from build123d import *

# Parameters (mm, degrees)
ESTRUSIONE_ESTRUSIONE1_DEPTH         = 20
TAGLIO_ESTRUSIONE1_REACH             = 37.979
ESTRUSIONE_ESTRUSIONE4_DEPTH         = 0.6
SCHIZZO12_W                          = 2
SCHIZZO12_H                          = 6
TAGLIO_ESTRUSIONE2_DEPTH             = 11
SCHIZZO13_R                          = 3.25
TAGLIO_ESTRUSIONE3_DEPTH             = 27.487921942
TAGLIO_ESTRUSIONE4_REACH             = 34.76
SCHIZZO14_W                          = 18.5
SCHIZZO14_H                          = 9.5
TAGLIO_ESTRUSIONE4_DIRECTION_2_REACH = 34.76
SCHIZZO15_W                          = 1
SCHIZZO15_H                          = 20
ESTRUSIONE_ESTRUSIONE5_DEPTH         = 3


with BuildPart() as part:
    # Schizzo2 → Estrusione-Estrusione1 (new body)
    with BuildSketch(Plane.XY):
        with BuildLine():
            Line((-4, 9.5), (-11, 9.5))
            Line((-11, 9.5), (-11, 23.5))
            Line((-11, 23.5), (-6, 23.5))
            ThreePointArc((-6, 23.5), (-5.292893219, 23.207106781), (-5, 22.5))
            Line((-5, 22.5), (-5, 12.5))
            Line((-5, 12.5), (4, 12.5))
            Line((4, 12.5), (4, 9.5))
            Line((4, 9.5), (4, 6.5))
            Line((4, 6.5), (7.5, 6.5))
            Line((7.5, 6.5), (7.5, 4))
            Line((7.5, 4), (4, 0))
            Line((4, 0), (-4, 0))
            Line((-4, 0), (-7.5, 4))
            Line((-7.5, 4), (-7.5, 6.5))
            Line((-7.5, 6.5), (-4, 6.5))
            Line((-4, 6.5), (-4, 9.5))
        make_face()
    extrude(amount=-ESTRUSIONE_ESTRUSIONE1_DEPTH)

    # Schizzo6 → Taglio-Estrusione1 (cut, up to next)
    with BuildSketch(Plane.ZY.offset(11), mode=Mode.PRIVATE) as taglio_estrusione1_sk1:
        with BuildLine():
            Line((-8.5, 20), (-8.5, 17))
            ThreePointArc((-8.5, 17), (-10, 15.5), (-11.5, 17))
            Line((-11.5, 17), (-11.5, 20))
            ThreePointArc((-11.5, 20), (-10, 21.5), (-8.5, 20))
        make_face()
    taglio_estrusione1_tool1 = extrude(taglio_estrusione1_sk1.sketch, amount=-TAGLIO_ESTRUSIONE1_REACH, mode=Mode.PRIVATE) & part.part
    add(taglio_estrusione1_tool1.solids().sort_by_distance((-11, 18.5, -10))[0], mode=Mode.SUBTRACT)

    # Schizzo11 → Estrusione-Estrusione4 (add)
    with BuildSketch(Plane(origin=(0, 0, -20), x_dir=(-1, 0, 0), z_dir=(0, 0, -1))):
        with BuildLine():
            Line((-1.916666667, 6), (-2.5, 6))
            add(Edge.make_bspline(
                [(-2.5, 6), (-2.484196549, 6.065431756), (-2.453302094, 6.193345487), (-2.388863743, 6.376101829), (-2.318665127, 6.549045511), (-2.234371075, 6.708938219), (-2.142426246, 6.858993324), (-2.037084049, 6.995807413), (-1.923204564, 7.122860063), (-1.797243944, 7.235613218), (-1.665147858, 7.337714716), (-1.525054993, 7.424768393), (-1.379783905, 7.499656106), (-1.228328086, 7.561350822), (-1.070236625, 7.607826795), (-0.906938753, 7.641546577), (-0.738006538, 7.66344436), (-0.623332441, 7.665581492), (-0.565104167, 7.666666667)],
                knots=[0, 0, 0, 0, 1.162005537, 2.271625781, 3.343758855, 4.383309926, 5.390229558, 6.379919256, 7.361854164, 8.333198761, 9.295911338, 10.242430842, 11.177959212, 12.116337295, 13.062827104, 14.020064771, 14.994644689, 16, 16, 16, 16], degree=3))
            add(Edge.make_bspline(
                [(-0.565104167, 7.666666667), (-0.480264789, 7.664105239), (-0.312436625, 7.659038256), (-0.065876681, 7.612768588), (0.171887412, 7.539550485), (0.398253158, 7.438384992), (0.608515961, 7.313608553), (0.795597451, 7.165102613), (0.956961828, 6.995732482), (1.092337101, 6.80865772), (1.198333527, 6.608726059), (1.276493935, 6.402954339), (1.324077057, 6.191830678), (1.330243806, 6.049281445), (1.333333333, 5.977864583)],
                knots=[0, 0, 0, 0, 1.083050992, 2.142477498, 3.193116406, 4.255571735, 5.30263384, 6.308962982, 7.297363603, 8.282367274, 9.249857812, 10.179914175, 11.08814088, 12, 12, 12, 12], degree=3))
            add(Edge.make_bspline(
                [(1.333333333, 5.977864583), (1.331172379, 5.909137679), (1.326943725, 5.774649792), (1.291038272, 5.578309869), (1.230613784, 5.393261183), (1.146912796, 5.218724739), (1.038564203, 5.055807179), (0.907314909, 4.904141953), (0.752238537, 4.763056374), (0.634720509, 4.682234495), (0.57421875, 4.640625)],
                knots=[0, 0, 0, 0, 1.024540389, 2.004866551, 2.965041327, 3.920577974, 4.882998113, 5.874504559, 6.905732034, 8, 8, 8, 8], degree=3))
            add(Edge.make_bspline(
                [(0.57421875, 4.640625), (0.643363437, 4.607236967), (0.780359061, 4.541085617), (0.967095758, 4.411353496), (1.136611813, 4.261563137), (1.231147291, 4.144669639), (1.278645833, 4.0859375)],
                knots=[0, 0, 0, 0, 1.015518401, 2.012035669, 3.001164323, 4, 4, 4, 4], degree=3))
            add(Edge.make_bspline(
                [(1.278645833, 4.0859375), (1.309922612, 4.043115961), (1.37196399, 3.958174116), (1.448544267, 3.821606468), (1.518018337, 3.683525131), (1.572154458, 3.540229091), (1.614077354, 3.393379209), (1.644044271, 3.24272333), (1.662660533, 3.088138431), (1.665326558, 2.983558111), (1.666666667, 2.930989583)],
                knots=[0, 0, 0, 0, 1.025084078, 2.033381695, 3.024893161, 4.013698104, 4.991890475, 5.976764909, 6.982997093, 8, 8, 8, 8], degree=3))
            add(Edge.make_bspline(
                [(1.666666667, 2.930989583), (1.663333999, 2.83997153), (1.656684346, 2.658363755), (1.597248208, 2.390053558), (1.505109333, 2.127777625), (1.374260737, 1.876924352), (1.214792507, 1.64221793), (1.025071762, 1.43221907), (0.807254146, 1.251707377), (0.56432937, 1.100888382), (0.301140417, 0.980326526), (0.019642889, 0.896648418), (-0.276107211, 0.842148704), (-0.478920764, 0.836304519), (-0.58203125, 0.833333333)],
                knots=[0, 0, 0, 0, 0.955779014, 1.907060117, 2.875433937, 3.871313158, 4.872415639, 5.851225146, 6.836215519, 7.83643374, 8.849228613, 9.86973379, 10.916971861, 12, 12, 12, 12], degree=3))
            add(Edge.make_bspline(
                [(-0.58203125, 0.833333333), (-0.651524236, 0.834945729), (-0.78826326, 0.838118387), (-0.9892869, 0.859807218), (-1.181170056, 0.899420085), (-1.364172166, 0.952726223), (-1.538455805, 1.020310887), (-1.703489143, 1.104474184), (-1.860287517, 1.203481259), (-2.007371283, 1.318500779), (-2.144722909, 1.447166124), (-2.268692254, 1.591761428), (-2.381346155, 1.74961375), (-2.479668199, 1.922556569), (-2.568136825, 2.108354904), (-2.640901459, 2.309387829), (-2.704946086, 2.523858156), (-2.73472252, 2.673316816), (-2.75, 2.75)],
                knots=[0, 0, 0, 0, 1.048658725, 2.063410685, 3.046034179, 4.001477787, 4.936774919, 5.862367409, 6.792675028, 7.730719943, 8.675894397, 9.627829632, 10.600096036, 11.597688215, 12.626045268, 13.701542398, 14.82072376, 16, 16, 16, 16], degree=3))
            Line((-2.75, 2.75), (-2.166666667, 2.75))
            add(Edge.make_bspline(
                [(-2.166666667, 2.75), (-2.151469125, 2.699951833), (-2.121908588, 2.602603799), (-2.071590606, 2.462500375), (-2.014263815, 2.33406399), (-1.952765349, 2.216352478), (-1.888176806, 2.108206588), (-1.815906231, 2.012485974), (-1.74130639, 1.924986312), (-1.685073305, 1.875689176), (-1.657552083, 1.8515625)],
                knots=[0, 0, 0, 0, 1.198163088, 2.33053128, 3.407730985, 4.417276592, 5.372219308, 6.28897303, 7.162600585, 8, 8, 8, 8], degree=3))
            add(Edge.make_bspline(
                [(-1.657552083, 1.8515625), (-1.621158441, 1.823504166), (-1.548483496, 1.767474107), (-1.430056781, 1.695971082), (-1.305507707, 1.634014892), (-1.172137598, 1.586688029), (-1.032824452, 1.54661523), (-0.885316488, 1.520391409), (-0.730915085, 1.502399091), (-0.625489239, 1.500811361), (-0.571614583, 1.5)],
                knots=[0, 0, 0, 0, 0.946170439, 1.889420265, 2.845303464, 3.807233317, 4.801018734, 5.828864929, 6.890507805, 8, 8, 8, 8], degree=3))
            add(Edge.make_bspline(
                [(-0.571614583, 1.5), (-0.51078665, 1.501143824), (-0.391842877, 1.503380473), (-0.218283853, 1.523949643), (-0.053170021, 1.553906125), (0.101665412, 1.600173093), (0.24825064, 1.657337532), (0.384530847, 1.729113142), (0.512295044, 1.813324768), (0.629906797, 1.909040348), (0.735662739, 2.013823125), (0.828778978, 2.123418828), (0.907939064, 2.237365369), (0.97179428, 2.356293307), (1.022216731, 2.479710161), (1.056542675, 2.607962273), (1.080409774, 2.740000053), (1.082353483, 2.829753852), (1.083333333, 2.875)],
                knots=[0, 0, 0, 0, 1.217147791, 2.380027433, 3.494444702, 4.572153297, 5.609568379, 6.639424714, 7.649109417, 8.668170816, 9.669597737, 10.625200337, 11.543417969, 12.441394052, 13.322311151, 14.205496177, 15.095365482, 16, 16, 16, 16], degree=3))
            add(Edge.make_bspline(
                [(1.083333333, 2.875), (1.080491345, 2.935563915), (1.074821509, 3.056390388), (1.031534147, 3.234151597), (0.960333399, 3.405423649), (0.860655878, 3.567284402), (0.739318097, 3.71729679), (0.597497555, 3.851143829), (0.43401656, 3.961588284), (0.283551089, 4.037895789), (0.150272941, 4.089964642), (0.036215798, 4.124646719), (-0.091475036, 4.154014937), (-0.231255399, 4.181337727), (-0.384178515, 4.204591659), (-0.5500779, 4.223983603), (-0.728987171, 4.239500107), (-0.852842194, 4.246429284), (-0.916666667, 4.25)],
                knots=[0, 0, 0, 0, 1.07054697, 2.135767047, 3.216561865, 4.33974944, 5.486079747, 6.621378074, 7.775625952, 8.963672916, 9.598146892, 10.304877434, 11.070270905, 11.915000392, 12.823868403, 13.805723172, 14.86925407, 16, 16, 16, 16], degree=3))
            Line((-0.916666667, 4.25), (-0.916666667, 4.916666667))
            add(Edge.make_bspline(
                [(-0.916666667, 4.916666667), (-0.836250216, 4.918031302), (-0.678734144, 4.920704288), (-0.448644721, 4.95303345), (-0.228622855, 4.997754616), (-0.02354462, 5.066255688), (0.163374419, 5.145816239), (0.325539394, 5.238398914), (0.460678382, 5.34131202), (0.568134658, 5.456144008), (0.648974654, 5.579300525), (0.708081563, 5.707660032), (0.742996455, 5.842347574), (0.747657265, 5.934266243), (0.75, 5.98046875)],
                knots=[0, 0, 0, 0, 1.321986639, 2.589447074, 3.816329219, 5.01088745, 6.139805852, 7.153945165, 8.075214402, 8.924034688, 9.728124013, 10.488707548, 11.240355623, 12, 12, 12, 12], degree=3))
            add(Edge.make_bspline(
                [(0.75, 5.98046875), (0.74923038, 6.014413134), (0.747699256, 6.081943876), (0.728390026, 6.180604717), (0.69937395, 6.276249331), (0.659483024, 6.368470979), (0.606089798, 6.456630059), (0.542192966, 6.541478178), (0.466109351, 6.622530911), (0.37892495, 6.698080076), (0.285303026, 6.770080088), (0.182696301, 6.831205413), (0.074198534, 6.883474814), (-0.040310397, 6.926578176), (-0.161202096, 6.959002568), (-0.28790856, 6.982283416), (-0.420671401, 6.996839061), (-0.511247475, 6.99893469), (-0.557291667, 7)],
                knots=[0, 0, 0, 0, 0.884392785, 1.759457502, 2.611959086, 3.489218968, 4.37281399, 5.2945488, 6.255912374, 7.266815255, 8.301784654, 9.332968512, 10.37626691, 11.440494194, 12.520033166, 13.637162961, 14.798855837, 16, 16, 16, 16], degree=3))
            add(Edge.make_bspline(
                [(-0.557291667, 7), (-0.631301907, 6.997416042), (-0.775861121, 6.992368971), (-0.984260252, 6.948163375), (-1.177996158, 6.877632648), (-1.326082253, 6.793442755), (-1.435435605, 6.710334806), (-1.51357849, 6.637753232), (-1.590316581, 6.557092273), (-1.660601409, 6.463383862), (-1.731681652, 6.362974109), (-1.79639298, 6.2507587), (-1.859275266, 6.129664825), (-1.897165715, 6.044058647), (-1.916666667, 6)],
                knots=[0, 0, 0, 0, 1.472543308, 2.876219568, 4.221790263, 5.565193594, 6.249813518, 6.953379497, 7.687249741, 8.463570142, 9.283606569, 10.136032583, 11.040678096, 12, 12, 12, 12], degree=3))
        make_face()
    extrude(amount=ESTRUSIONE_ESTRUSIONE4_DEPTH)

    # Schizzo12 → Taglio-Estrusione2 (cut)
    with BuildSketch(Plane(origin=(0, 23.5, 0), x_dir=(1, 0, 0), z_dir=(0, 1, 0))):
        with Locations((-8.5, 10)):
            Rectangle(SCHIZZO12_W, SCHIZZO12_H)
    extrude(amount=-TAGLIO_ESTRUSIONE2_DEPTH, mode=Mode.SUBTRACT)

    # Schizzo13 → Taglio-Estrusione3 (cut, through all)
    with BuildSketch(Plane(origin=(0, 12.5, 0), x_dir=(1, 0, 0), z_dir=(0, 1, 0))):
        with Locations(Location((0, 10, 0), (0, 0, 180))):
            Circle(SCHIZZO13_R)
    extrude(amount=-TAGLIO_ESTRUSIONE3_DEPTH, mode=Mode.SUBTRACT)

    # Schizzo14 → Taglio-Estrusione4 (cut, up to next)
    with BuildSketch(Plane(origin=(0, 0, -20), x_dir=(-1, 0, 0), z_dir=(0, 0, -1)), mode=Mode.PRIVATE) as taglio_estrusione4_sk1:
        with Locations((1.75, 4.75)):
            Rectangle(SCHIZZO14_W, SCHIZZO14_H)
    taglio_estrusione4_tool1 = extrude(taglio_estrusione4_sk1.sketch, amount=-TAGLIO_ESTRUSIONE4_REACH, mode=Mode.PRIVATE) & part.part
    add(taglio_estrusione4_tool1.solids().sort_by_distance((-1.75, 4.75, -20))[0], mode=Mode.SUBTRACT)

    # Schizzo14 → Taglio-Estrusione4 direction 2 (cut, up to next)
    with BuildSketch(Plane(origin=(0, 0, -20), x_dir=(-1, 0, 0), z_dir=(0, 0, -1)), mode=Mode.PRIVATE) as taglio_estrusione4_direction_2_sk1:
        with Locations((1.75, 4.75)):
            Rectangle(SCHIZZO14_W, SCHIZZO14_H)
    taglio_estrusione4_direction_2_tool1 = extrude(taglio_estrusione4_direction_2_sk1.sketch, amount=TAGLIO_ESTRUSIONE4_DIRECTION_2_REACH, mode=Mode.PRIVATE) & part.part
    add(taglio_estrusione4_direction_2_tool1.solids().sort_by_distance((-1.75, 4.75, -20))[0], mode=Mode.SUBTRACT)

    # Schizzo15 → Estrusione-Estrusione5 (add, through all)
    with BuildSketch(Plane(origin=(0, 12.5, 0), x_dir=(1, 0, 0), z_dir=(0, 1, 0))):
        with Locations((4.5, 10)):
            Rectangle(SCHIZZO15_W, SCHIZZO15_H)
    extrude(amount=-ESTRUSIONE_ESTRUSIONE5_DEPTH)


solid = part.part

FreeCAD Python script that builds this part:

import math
import FreeCAD as App
import Part
import Sketcher

V = App.Vector
Q = App.Units.Quantity


def add_polygon(sketch, points):
    """Adds a closed chain of lines whose ends are joined by coincident constraints."""
    first, n = sketch.GeometryCount, len(points)
    for a, b in zip(points, points[1:] + points[:1]):
        sketch.addGeometry(Part.LineSegment(App.Vector(*a, 0), App.Vector(*b, 0)), False)
    for i in range(n):
        sketch.addConstraint(Sketcher.Constraint("Coincident", first + i, 2, first + (i + 1) % n, 1))

doc = App.newDocument("Part")
body = doc.addObject("PartDesign::Body", "Body")
body.AllowCompound = True

# Sketch on XY plane
sketch1 = body.newObject("Sketcher::SketchObject", "Sketch")
sketch1.AttachmentSupport = (doc.getObject("XY_Plane"), [""])
sketch1.MapMode = "FlatFace"
sketch1.addGeometry([
    Part.LineSegment(V(-11, 9.5, 0), V(-4, 9.5, 0)),  # 0
    Part.LineSegment(V(-4, 9.5, 0), V(-4, 6.5, 0)),  # 1
    Part.LineSegment(V(-4, 6.5, 0), V(-7.5, 6.5, 0)),  # 2
    Part.LineSegment(V(-7.5, 6.5, 0), V(-7.5, 4, 0)),  # 3
    Part.LineSegment(V(-7.5, 4, 0), V(-4, 0, 0)),  # 4
    Part.LineSegment(V(-4, 0, 0), V(4, 0, 0)),  # 5
    Part.LineSegment(V(4, 0, 0), V(7.5, 4, 0)),  # 6
    Part.LineSegment(V(7.5, 4, 0), V(7.5, 6.5, 0)),  # 7
    Part.LineSegment(V(7.5, 6.5, 0), V(4, 6.5, 0)),  # 8
    Part.LineSegment(V(4, 6.5, 0), V(4, 12.5, 0)),  # 9
    Part.LineSegment(V(4, 12.5, 0), V(-5, 12.5, 0)),  # 10
    Part.LineSegment(V(-5, 12.5, 0), V(-5, 22.5, 0)),  # 11
    Part.ArcOfCircle(Part.Circle(V(-6, 22.5, 0), V(0, 0, 1), 1), math.radians(0), math.radians(90)),  # 12
    Part.LineSegment(V(-6, 23.5, 0), V(-11, 23.5, 0)),  # 13
    Part.LineSegment(V(-11, 23.5, 0), V(-11, 9.5, 0)),  # 14
], False)
sketch1.addConstraint([
    Sketcher.Constraint("Coincident", 0, 2, 1, 1),
    Sketcher.Constraint("Coincident", 1, 2, 2, 1),
    Sketcher.Constraint("Coincident", 2, 2, 3, 1),
    Sketcher.Constraint("Coincident", 3, 2, 4, 1),
    Sketcher.Constraint("Coincident", 4, 2, 5, 1),
    Sketcher.Constraint("Coincident", 5, 2, 6, 1),
    Sketcher.Constraint("Coincident", 6, 2, 7, 1),
    Sketcher.Constraint("Coincident", 7, 2, 8, 1),
    Sketcher.Constraint("Coincident", 8, 2, 9, 1),
    Sketcher.Constraint("Coincident", 9, 2, 10, 1),
    Sketcher.Constraint("Coincident", 10, 2, 11, 1),
    Sketcher.Constraint("Tangent", 11, 2, 12, 1),
    Sketcher.Constraint("Tangent", 12, 2, 13, 1),
    Sketcher.Constraint("Coincident", 13, 2, 14, 1),
    Sketcher.Constraint("Coincident", 14, 2, 0, 1),
    Sketcher.Constraint("Horizontal", 0),
    Sketcher.Constraint("Vertical", 1),
    Sketcher.Constraint("Horizontal", 2),
    Sketcher.Constraint("Vertical", 3),
    Sketcher.Constraint("Horizontal", 5),
    Sketcher.Constraint("Vertical", 7),
    Sketcher.Constraint("Horizontal", 8),
    Sketcher.Constraint("Vertical", 9),
    Sketcher.Constraint("Horizontal", 10),
    Sketcher.Constraint("Vertical", 11),
    Sketcher.Constraint("Horizontal", 13),
    Sketcher.Constraint("Vertical", 14),
    Sketcher.Constraint("Symmetric", 4, 2, 5, 2, -1, 1),
    Sketcher.Constraint("Symmetric", 3, 2, 6, 2, -2),
    Sketcher.Constraint("Symmetric", 1, 2, 8, 2, -2),
    Sketcher.Constraint("Vertical", 1, 2, 4, 2),
    Sketcher.Constraint("Radius", 12, Q("1 mm")),
    Sketcher.Constraint("DistanceX", 0, 1, 0, 2, Q("7 mm")),
    Sketcher.Constraint("DistanceX", 5, 1, 5, 2, Q("8 mm")),
    Sketcher.Constraint("DistanceX", 10, 2, 10, 1, Q("9 mm")),
    Sketcher.Constraint("DistanceY", 1, 2, 1, 1, Q("3 mm")),
    Sketcher.Constraint("DistanceY", 9, 1, 9, 2, Q("6 mm")),
    Sketcher.Constraint("DistanceY", 11, 1, 11, 2, Q("10 mm")),
    Sketcher.Constraint("DistanceX", 2, 2, 2, 1, Q("3.5 mm")),
    Sketcher.Constraint("DistanceY", 3, 2, 3, 1, Q("2.5 mm")),
    Sketcher.Constraint("DistanceY", -1, 1, 3, 2, Q("4 mm")),
])
pad1 = body.newObject("PartDesign::Pad", "Pad")
pad1.Profile = sketch1
pad1.Length = 20
pad1.Reversed = True

# Sketch on YZ plane
sketch2 = body.newObject("Sketcher::SketchObject", "Sketch001")
sketch2.AttachmentSupport = (doc.getObject("YZ_Plane"), [""])
sketch2.MapMode = "FlatFace"
sketch2.AttachmentOffset = App.Placement(V(0, 0, -11), App.Rotation())
sketch2.addGeometry([
    Part.LineSegment(V(17, -8.5, 0), V(20, -8.5, 0)),
    Part.ArcOfCircle(Part.Circle(V(20, -10, 0), V(0, 0, 1), 1.5), math.radians(-90), math.radians(90)),
    Part.LineSegment(V(20, -11.5, 0), V(17, -11.5, 0)),
    Part.ArcOfCircle(Part.Circle(V(17, -10, 0), V(0, 0, 1), 1.5), math.radians(90), math.radians(270)),
], False)
sketch2.addConstraint([
    Sketcher.Constraint("Tangent", 0, 2, 1, 2),
    Sketcher.Constraint("Tangent", 1, 1, 2, 1),
    Sketcher.Constraint("Tangent", 2, 2, 3, 2),
    Sketcher.Constraint("Tangent", 3, 1, 0, 1),
    Sketcher.Constraint("Horizontal", 0),
    Sketcher.Constraint("Horizontal", 2),
    Sketcher.Constraint("Radius", 1, Q("1.5 mm")),
    Sketcher.Constraint("DistanceX", 0, 1, 0, 2, Q("3 mm")),
    Sketcher.Constraint("DistanceX", -1, 1, 1, 3, Q("20 mm")),
    Sketcher.Constraint("DistanceY", 1, 3, -1, 1, Q("10 mm")),
])
pocket1 = body.newObject("PartDesign::Pocket", "Pocket")
pocket1.Profile = sketch2
pocket1.Type = "UpToFirst"
pocket1.Reversed = True

# Sketch on XY plane
sketch3 = body.newObject("Sketcher::SketchObject", "Sketch002")
sketch3.AttachmentSupport = (doc.getObject("XY_Plane"), [""])
sketch3.MapMode = "FlatFace"
sketch3.AttachmentOffset = App.Placement(V(0, 0, -20), App.Rotation())
sketch3.addGeometry([
    Part.LineSegment(V(2.5, 6, 0), V(1.916667, 6, 0)),  # 0
    Part.BSplineCurve([V(0.557292, 7, 0), V(0.631302, 6.997416, 0), V(0.775861, 6.992369, 0), V(0.98426, 6.948163, 0), V(1.177996, 6.877633, 0), V(1.326082, 6.793443, 0), V(1.435436, 6.710335, 0), V(1.513578, 6.637753, 0), V(1.590317, 6.557092, 0), V(1.660601, 6.463384, 0), V(1.731682, 6.362974, 0), V(1.796393, 6.250759, 0), V(1.859275, 6.129665, 0), V(1.897166, 6.044059, 0), V(1.916667, 6, 0)], [4, 1, 1, 1, 1, 1, 1, 1, 1, 1, 1, 1, 4], [0, 1.472543308, 2.876219568, 4.221790263, 5.565193594, 6.249813518, 6.953379497, 7.687249741, 8.463570142, 9.283606569, 10.136032583, 11.040678096, 12], False, 3, [1, 1, 1, 1, 1, 1, 1, 1, 1, 1, 1, 1, 1, 1, 1], False),  # 1
    Part.BSplineCurve([V(-0.75, 5.980469, 0), V(-0.74923, 6.014413, 0), V(-0.747699, 6.081944, 0), V(-0.72839, 6.180605, 0), V(-0.699374, 6.276249, 0), V(-0.659483, 6.368471, 0), V(-0.60609, 6.45663, 0), V(-0.542193, 6.541478, 0), V(-0.466109, 6.622531, 0), V(-0.378925, 6.69808, 0), V(-0.285303, 6.77008, 0), V(-0.182696, 6.831205, 0), V(-0.074199, 6.883475, 0), V(0.04031, 6.926578, 0), V(0.161202, 6.959003, 0), V(0.287909, 6.982283, 0), V(0.420671, 6.996839, 0), V(0.511247, 6.998935, 0), V(0.557292, 7, 0)], [4, 1, 1, 1, 1, 1, 1, 1, 1, 1, 1, 1, 1, 1, 1, 1, 4], [0, 0.884392785, 1.759457502, 2.611959086, 3.489218968, 4.37281399, 5.2945488, 6.255912374, 7.266815255, 8.301784654, 9.332968512, 10.37626691, 11.440494194, 12.520033166, 13.637162961, 14.798855837, 16], False, 3, [1, 1, 1, 1, 1, 1, 1, 1, 1, 1, 1, 1, 1, 1, 1, 1, 1, 1, 1], False),  # 2
    Part.BSplineCurve([V(0.916667, 4.916667, 0), V(0.83625, 4.918031, 0), V(0.678734, 4.920704, 0), V(0.448645, 4.953033, 0), V(0.228623, 4.997755, 0), V(0.023545, 5.066256, 0), V(-0.163374, 5.145816, 0), V(-0.325539, 5.238399, 0), V(-0.460678, 5.341312, 0), V(-0.568135, 5.456144, 0), V(-0.648975, 5.579301, 0), V(-0.708082, 5.70766, 0), V(-0.742996, 5.842348, 0), V(-0.747657, 5.934266, 0), V(-0.75, 5.980469, 0)], [4, 1, 1, 1, 1, 1, 1, 1, 1, 1, 1, 1, 4], [0, 1.321986639, 2.589447074, 3.816329219, 5.01088745, 6.139805852, 7.153945165, 8.075214402, 8.924034688, 9.728124013, 10.488707548, 11.240355623, 12], False, 3, [1, 1, 1, 1, 1, 1, 1, 1, 1, 1, 1, 1, 1, 1, 1], False),  # 3
    Part.LineSegment(V(0.916667, 4.916667, 0), V(0.916667, 4.25, 0)),  # 4
    Part.BSplineCurve([V(-1.083333, 2.875, 0), V(-1.080491, 2.935564, 0), V(-1.074822, 3.05639, 0), V(-1.031534, 3.234152, 0), V(-0.960333, 3.405424, 0), V(-0.860656, 3.567284, 0), V(-0.739318, 3.717297, 0), V(-0.597498, 3.851144, 0), V(-0.434017, 3.961588, 0), V(-0.283551, 4.037896, 0), V(-0.150273, 4.089965, 0), V(-0.036216, 4.124647, 0), V(0.091475, 4.154015, 0), V(0.231255, 4.181338, 0), V(0.384179, 4.204592, 0), V(0.550078, 4.223984, 0), V(0.728987, 4.2395, 0), V(0.852842, 4.246429, 0), V(0.916667, 4.25, 0)], [4, 1, 1, 1, 1, 1, 1, 1, 1, 1, 1, 1, 1, 1, 1, 1, 4], [0, 1.07054697, 2.135767047, 3.216561865, 4.33974944, 5.486079747, 6.621378074, 7.775625952, 8.963672916, 9.598146892, 10.304877434, 11.070270905, 11.915000392, 12.823868403, 13.805723172, 14.86925407, 16], False, 3, [1, 1, 1, 1, 1, 1, 1, 1, 1, 1, 1, 1, 1, 1, 1, 1, 1, 1, 1], False),  # 5
    Part.BSplineCurve([V(0.571615, 1.5, 0), V(0.510787, 1.501144, 0), V(0.391843, 1.50338, 0), V(0.218284, 1.52395, 0), V(0.05317, 1.553906, 0), V(-0.101665, 1.600173, 0), V(-0.248251, 1.657338, 0), V(-0.384531, 1.729113, 0), V(-0.512295, 1.813325, 0), V(-0.629907, 1.90904, 0), V(-0.735663, 2.013823, 0), V(-0.828779, 2.123419, 0), V(-0.907939, 2.237365, 0), V(-0.971794, 2.356293, 0), V(-1.022217, 2.47971, 0), V(-1.056543, 2.607962, 0), V(-1.08041, 2.74, 0), V(-1.082353, 2.829754, 0), V(-1.083333, 2.875, 0)], [4, 1, 1, 1, 1, 1, 1, 1, 1, 1, 1, 1, 1, 1, 1, 1, 4], [0, 1.217147791, 2.380027433, 3.494444702, 4.572153297, 5.609568379, 6.639424714, 7.649109417, 8.668170816, 9.669597737, 10.625200337, 11.543417969, 12.441394052, 13.322311151, 14.205496177, 15.095365482, 16], False, 3, [1, 1, 1, 1, 1, 1, 1, 1, 1, 1, 1, 1, 1, 1, 1, 1, 1, 1, 1], False),  # 6
    Part.BSplineCurve([V(1.657552, 1.851562, 0), V(1.621158, 1.823504, 0), V(1.548483, 1.767474, 0), V(1.430057, 1.695971, 0), V(1.305508, 1.634015, 0), V(1.172138, 1.586688, 0), V(1.032824, 1.546615, 0), V(0.885316, 1.520391, 0), V(0.730915, 1.502399, 0), V(0.625489, 1.500811, 0), V(0.571615, 1.5, 0)], [4, 1, 1, 1, 1, 1, 1, 1, 4], [0, 0.946170439, 1.889420265, 2.845303464, 3.807233317, 4.801018734, 5.828864929, 6.890507805, 8], False, 3, [1, 1, 1, 1, 1, 1, 1, 1, 1, 1, 1], False),  # 7
    Part.BSplineCurve([V(2.166667, 2.75, 0), V(2.151469, 2.699952, 0), V(2.121909, 2.602604, 0), V(2.071591, 2.4625, 0), V(2.014264, 2.334064, 0), V(1.952765, 2.216352, 0), V(1.888177, 2.108207, 0), V(1.815906, 2.012486, 0), V(1.741306, 1.924986, 0), V(1.685073, 1.875689, 0), V(1.657552, 1.851562, 0)], [4, 1, 1, 1, 1, 1, 1, 1, 4], [0, 1.198163088, 2.33053128, 3.407730985, 4.417276592, 5.372219308, 6.28897303, 7.162600585, 8], False, 3, [1, 1, 1, 1, 1, 1, 1, 1, 1, 1, 1], False),  # 8
    Part.LineSegment(V(2.166667, 2.75, 0), V(2.75, 2.75, 0)),  # 9
    Part.BSplineCurve([V(0.582031, 0.833333, 0), V(0.651524, 0.834946, 0), V(0.788263, 0.838118, 0), V(0.989287, 0.859807, 0), V(1.18117, 0.89942, 0), V(1.364172, 0.952726, 0), V(1.538456, 1.020311, 0), V(1.703489, 1.104474, 0), V(1.860288, 1.203481, 0), V(2.007371, 1.318501, 0), V(2.144723, 1.447166, 0), V(2.268692, 1.591761, 0), V(2.381346, 1.749614, 0), V(2.479668, 1.922557, 0), V(2.568137, 2.108355, 0), V(2.640901, 2.309388, 0), V(2.704946, 2.523858, 0), V(2.734723, 2.673317, 0), V(2.75, 2.75, 0)], [4, 1, 1, 1, 1, 1, 1, 1, 1, 1, 1, 1, 1, 1, 1, 1, 4], [0, 1.048658725, 2.063410685, 3.046034179, 4.001477787, 4.936774919, 5.862367409, 6.792675028, 7.730719943, 8.675894397, 9.627829632, 10.600096036, 11.597688215, 12.626045268, 13.701542398, 14.82072376, 16], False, 3, [1, 1, 1, 1, 1, 1, 1, 1, 1, 1, 1, 1, 1, 1, 1, 1, 1, 1, 1], False),  # 10
    Part.BSplineCurve([V(-1.666667, 2.93099, 0), V(-1.663334, 2.839972, 0), V(-1.656684, 2.658364, 0), V(-1.597248, 2.390054, 0), V(-1.505109, 2.127778, 0), V(-1.374261, 1.876924, 0), V(-1.214793, 1.642218, 0), V(-1.025072, 1.432219, 0), V(-0.807254, 1.251707, 0), V(-0.564329, 1.100888, 0), V(-0.30114, 0.980327, 0), V(-0.019643, 0.896648, 0), V(0.276107, 0.842149, 0), V(0.478921, 0.836305, 0), V(0.582031, 0.833333, 0)], [4, 1, 1, 1, 1, 1, 1, 1, 1, 1, 1, 1, 4], [0, 0.955779014, 1.907060117, 2.875433937, 3.871313158, 4.872415639, 5.851225146, 6.836215519, 7.83643374, 8.849228613, 9.86973379, 10.916971861, 12], False, 3, [1, 1, 1, 1, 1, 1, 1, 1, 1, 1, 1, 1, 1, 1, 1], False),  # 11
    Part.BSplineCurve([V(-1.278646, 4.085938, 0), V(-1.309923, 4.043116, 0), V(-1.371964, 3.958174, 0), V(-1.448544, 3.821606, 0), V(-1.518018, 3.683525, 0), V(-1.572154, 3.540229, 0), V(-1.614077, 3.393379, 0), V(-1.644044, 3.242723, 0), V(-1.662661, 3.088138, 0), V(-1.665327, 2.983558, 0), V(-1.666667, 2.93099, 0)], [4, 1, 1, 1, 1, 1, 1, 1, 4], [0, 1.025084078, 2.033381695, 3.024893161, 4.013698104, 4.991890475, 5.976764909, 6.982997093, 8], False, 3, [1, 1, 1, 1, 1, 1, 1, 1, 1, 1, 1], False),  # 12
    Part.BSplineCurve([V(-0.574219, 4.640625, 0), V(-0.643363, 4.607237, 0), V(-0.780359, 4.541086, 0), V(-0.967096, 4.411353, 0), V(-1.136612, 4.261563, 0), V(-1.231147, 4.14467, 0), V(-1.278646, 4.085938, 0)], [4, 1, 1, 1, 4], [0, 1.015518401, 2.012035669, 3.001164323, 4], False, 3, [1, 1, 1, 1, 1, 1, 1], False),  # 13
    Part.BSplineCurve([V(-1.333333, 5.977865, 0), V(-1.331172, 5.909138, 0), V(-1.326944, 5.77465, 0), V(-1.291038, 5.57831, 0), V(-1.230614, 5.393261, 0), V(-1.146913, 5.218725, 0), V(-1.038564, 5.055807, 0), V(-0.907315, 4.904142, 0), V(-0.752239, 4.763056, 0), V(-0.634721, 4.682234, 0), V(-0.574219, 4.640625, 0)], [4, 1, 1, 1, 1, 1, 1, 1, 4], [0, 1.024540389, 2.004866551, 2.965041327, 3.920577974, 4.882998113, 5.874504559, 6.905732034, 8], False, 3, [1, 1, 1, 1, 1, 1, 1, 1, 1, 1, 1], False),  # 14
    Part.BSplineCurve([V(0.565104, 7.666667, 0), V(0.480265, 7.664105, 0), V(0.312437, 7.659038, 0), V(0.065877, 7.612769, 0), V(-0.171887, 7.53955, 0), V(-0.398253, 7.438385, 0), V(-0.608516, 7.313609, 0), V(-0.795597, 7.165103, 0), V(-0.956962, 6.995732, 0), V(-1.092337, 6.808658, 0), V(-1.198334, 6.608726, 0), V(-1.276494, 6.402954, 0), V(-1.324077, 6.191831, 0), V(-1.330244, 6.049281, 0), V(-1.333333, 5.977865, 0)], [4, 1, 1, 1, 1, 1, 1, 1, 1, 1, 1, 1, 4], [0, 1.083050992, 2.142477498, 3.193116406, 4.255571735, 5.30263384, 6.308962982, 7.297363603, 8.282367274, 9.249857812, 10.179914175, 11.08814088, 12], False, 3, [1, 1, 1, 1, 1, 1, 1, 1, 1, 1, 1, 1, 1, 1, 1], False),  # 15
    Part.BSplineCurve([V(2.5, 6, 0), V(2.484197, 6.065432, 0), V(2.453302, 6.193345, 0), V(2.388864, 6.376102, 0), V(2.318665, 6.549046, 0), V(2.234371, 6.708938, 0), V(2.142426, 6.858993, 0), V(2.037084, 6.995807, 0), V(1.923205, 7.12286, 0), V(1.797244, 7.235613, 0), V(1.665148, 7.337715, 0), V(1.525055, 7.424768, 0), V(1.379784, 7.499656, 0), V(1.228328, 7.561351, 0), V(1.070237, 7.607827, 0), V(0.906939, 7.641547, 0), V(0.738007, 7.663444, 0), V(0.623332, 7.665581, 0), V(0.565104, 7.666667, 0)], [4, 1, 1, 1, 1, 1, 1, 1, 1, 1, 1, 1, 1, 1, 1, 1, 4], [0, 1.162005537, 2.271625781, 3.343758855, 4.383309926, 5.390229558, 6.379919256, 7.361854164, 8.333198761, 9.295911338, 10.242430842, 11.177959212, 12.116337295, 13.062827104, 14.020064771, 14.994644689, 16], False, 3, [1, 1, 1, 1, 1, 1, 1, 1, 1, 1, 1, 1, 1, 1, 1, 1, 1, 1, 1], False),  # 16
], False)
sketch3.addConstraint([
    Sketcher.Constraint("Block", 1),
    Sketcher.Constraint("Block", 2),
    Sketcher.Constraint("Block", 3),
    Sketcher.Constraint("Block", 5),
    Sketcher.Constraint("Block", 6),
    Sketcher.Constraint("Block", 7),
    Sketcher.Constraint("Block", 8),
    Sketcher.Constraint("Block", 10),
    Sketcher.Constraint("Block", 11),
    Sketcher.Constraint("Block", 12),
    Sketcher.Constraint("Block", 13),
    Sketcher.Constraint("Block", 14),
    Sketcher.Constraint("Block", 15),
    Sketcher.Constraint("Block", 16),
    Sketcher.Constraint("Coincident", 0, 2, 1, 2),
    Sketcher.Constraint("Coincident", 3, 1, 4, 1),
    Sketcher.Constraint("Coincident", 4, 2, 5, 2),
    Sketcher.Constraint("Coincident", 8, 1, 9, 1),
    Sketcher.Constraint("Coincident", 9, 2, 10, 2),
    Sketcher.Constraint("Coincident", 16, 1, 0, 1),
])
pad2 = body.newObject("PartDesign::Pad", "Pad001")
pad2.Profile = sketch3
pad2.Length = 0.6
pad2.Reversed = True

# Sketch on XZ plane
sketch4 = body.newObject("Sketcher::SketchObject", "Sketch003")
sketch4.AttachmentSupport = (doc.getObject("XZ_Plane"), [""])
sketch4.MapMode = "FlatFace"
sketch4.AttachmentOffset = App.Placement(V(0, 0, -23.5), App.Rotation())
add_polygon(sketch4, [(-9.5, -13), (-9.5, -7), (-7.5, -7), (-7.5, -13)])  # lines 0-3
sketch4.addConstraint([
    Sketcher.Constraint("Vertical", 0),
    Sketcher.Constraint("Horizontal", 1),
    Sketcher.Constraint("Vertical", 2),
    Sketcher.Constraint("Horizontal", 3),
    Sketcher.Constraint("DistanceX", 1, 1, 1, 2, Q("2 mm")),
    Sketcher.Constraint("DistanceY", 0, 1, 0, 2, Q("6 mm")),
    Sketcher.Constraint("DistanceY", 0, 2, -1, 1, Q("7 mm")),
    Sketcher.Constraint("DistanceX", 0, 2, -1, 1, Q("9.5 mm")),
])
pocket2 = body.newObject("PartDesign::Pocket", "Pocket001")
pocket2.Profile = sketch4
pocket2.Length = 11
pocket2.Reversed = True

# Sketch on XZ plane
sketch5 = body.newObject("Sketcher::SketchObject", "Sketch004")
sketch5.AttachmentSupport = (doc.getObject("XZ_Plane"), [""])
sketch5.MapMode = "FlatFace"
sketch5.AttachmentOffset = App.Placement(V(0, 0, -12.5), App.Rotation())
sketch5.addGeometry(Part.Circle(V(0, -10, 0), V(0, 0, 1), 3.2), False)
sketch5.addConstraint([
    Sketcher.Constraint("PointOnObject", 0, 3, -2),
    Sketcher.Constraint("Diameter", 0, Q("6.5 mm")),
    Sketcher.Constraint("DistanceY", 0, 3, -1, 1, Q("10 mm")),
])
pocket3 = body.newObject("PartDesign::Pocket", "Pocket002")
pocket3.Profile = sketch5
pocket3.Type = "ThroughAll"
pocket3.Reversed = True

# Sketch on XY plane
sketch6 = body.newObject("Sketcher::SketchObject", "Sketch005")
sketch6.AttachmentSupport = (doc.getObject("XY_Plane"), [""])
sketch6.MapMode = "FlatFace"
sketch6.AttachmentOffset = App.Placement(V(0, 0, -20), App.Rotation())
add_polygon(sketch6, [(8, 10), (8, 0), (-11, 0), (-11, 10)])  # lines 0-3
sketch6.addConstraint([
    Sketcher.Constraint("Vertical", 0),
    Sketcher.Constraint("Horizontal", 1),
    Sketcher.Constraint("Vertical", 2),
    Sketcher.Constraint("Horizontal", 3),
    Sketcher.Constraint("PointOnObject", 0, 2, -1),
    Sketcher.Constraint("DistanceX", 1, 2, 1, 1, Q("18.5 mm")),
    Sketcher.Constraint("DistanceY", 0, 2, 0, 1, Q("9.5 mm")),
    Sketcher.Constraint("DistanceX", 1, 2, -1, 1, Q("11 mm")),
])
pocket4 = body.newObject("PartDesign::Pocket", "Pocket003")
pocket4.Profile = sketch6
pocket4.Type = "UpToFirst"
pocket4.Reversed = True

# Sketch on XY plane
sketch7 = body.newObject("Sketcher::SketchObject", "Sketch006")
sketch7.AttachmentSupport = (doc.getObject("XY_Plane"), [""])
sketch7.MapMode = "FlatFace"
sketch7.AttachmentOffset = App.Placement(V(0, 0, -20), App.Rotation())
add_polygon(sketch7, [(8, 10), (8, 0), (-11, 0), (-11, 10)])  # lines 0-3
sketch7.addConstraint([
    Sketcher.Constraint("Vertical", 0),
    Sketcher.Constraint("Horizontal", 1),
    Sketcher.Constraint("Vertical", 2),
    Sketcher.Constraint("Horizontal", 3),
    Sketcher.Constraint("PointOnObject", 0, 2, -1),
    Sketcher.Constraint("DistanceX", 1, 2, 1, 1, Q("18.5 mm")),
    Sketcher.Constraint("DistanceY", 0, 2, 0, 1, Q("9.5 mm")),
    Sketcher.Constraint("DistanceX", 1, 2, -1, 1, Q("11 mm")),
])
pocket5 = body.newObject("PartDesign::Pocket", "Pocket004")
pocket5.Profile = sketch7
pocket5.Length = 0.6

# Sketch on XZ plane
sketch8 = body.newObject("Sketcher::SketchObject", "Sketch007")
sketch8.AttachmentSupport = (doc.getObject("XZ_Plane"), [""])
sketch8.MapMode = "FlatFace"
sketch8.AttachmentOffset = App.Placement(V(0, 0, -12.5), App.Rotation())
add_polygon(sketch8, [(4, -20), (4, 0), (5, 0), (5, -20)])  # lines 0-3
sketch8.addConstraint([
    Sketcher.Constraint("Vertical", 0),
    Sketcher.Constraint("Horizontal", 1),
    Sketcher.Constraint("Vertical", 2),
    Sketcher.Constraint("Horizontal", 3),
    Sketcher.Constraint("PointOnObject", 0, 2, -1),
    Sketcher.Constraint("DistanceX", 1, 1, 1, 2, Q("1 mm")),
    Sketcher.Constraint("DistanceY", 0, 1, 0, 2, Q("20 mm")),
    Sketcher.Constraint("DistanceX", -1, 1, 0, 2, Q("4 mm")),
])
pad3 = body.newObject("PartDesign::Pad", "Pad002")
pad3.Profile = sketch8
pad3.Length = 3

doc.recompute()
